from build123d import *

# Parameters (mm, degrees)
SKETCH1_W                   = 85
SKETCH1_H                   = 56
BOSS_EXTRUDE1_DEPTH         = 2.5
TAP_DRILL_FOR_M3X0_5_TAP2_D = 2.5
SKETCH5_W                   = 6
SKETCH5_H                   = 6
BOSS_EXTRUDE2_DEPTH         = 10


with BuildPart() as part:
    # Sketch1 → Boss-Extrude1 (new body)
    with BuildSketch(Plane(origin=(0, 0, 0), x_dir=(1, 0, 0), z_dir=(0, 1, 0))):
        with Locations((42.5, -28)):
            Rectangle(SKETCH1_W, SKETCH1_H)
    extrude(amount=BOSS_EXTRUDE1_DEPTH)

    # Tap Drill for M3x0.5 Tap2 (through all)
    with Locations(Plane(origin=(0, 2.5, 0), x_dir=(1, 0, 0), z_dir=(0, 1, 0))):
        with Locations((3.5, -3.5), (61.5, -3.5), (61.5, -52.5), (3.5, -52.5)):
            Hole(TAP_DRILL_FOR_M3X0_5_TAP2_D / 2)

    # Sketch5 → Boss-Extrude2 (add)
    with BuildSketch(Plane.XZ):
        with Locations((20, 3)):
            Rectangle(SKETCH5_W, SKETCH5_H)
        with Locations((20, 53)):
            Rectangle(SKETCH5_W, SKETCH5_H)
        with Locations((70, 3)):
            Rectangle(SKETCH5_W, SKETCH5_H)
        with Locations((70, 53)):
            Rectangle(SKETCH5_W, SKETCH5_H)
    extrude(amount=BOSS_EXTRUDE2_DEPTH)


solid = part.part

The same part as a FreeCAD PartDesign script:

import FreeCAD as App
import Part
import Sketcher
from FreeCAD import Vector

doc = App.newDocument("Part")
params = doc.addObject("Spreadsheet::Sheet", "Params")
for row, (alias, value) in enumerate([
    ("sketch1_width", "85 mm"),
    ("sketch1_height", "56 mm"),
    ("pad1_length", "2.5 mm"),
    ("sketch2_diameter", "2.5 mm"),
    ("hole_diameter", "2.5 mm"),
    ("sketch3_width", "6 mm"),
    ("pad2_length", "10 mm"),
], start=1):
    params.set(f"A{row}", alias)
    params.set(f"B{row}", "=" + value)
    params.setAlias(f"B{row}", alias)

body = doc.addObject("PartDesign::Body", "Body")

sketch1 = body.newObject("Sketcher::SketchObject", "Sketch")
sketch1.AttachmentSupport = (doc.getObject("XZ_Plane"), [""])
sketch1.MapMode = "FlatFace"
sketch1.addGeometry([
    Part.LineSegment(Vector(0, 0, 0), Vector(0, 56, 0)),
    Part.LineSegment(Vector(0, 56, 0), Vector(85, 56, 0)),
    Part.LineSegment(Vector(85, 56, 0), Vector(85, 0, 0)),
    Part.LineSegment(Vector(85, 0, 0), Vector(0, 0, 0)),
], False)
sketch1.addConstraint([
    Sketcher.Constraint("Coincident", 0, 2, 1, 1),
    Sketcher.Constraint("Coincident", 1, 2, 2, 1),
    Sketcher.Constraint("Coincident", 2, 2, 3, 1),
    Sketcher.Constraint("Coincident", 3, 2, 0, 1),
    Sketcher.Constraint("Vertical", 0),
    Sketcher.Constraint("Horizontal", 1),
    Sketcher.Constraint("Vertical", 2),
    Sketcher.Constraint("Horizontal", 3),
    Sketcher.Constraint("Coincident", 3, 2, -1, 1),
    Sketcher.Constraint("DistanceX", 1, 1, 1, 2, 85.0),
    Sketcher.Constraint("DistanceY", 0, 1, 0, 2, 56.0),
])
sketch1.setExpression("Constraints[9]", "Params.sketch1_width")
sketch1.setExpression("Constraints[10]", "Params.sketch1_height")
pad1 = body.newObject("PartDesign::Pad", "Pad")
pad1.Profile = sketch1
pad1.setExpression("Length", "Params.pad1_length")
pad1.Reversed = True

sketch2 = body.newObject("Sketcher::SketchObject", "Sketch001")
sketch2.AttachmentSupport = (doc.getObject("XZ_Plane"), [""])
sketch2.MapMode = "FlatFace"
sketch2.AttachmentOffset = App.Placement(Vector(0, 0, -2.5), App.Rotation())
sketch2.addGeometry([
    Part.Circle(Vector(3.5, 3.5, 0), Vector(0, 0, 1), 1.2),
    Part.Circle(Vector(61.5, 3.5, 0), Vector(0, 0, 1), 1.2),
    Part.Circle(Vector(61.5, 52.5, 0), Vector(0, 0, 1), 1.2),
    Part.Circle(Vector(3.5, 52.5, 0), Vector(0, 0, 1), 1.2),
], False)
sketch2.addConstraint([
    Sketcher.Constraint("Equal", 0, 1),
    Sketcher.Constraint("Equal", 1, 2),
    Sketcher.Constraint("Equal", 2, 3),
    Sketcher.Constraint("Horizontal", 0, 3, 1, 3),
    Sketcher.Constraint("Horizontal", 2, 3, 3, 3),
    Sketcher.Constraint("Vertical", 1, 3, 2, 3),
    Sketcher.Constraint("Vertical", 0, 3, 3, 3),
    Sketcher.Constraint("Diameter", 0, 2.5),
    Sketcher.Constraint("DistanceX", 0, 3, 1, 3, 58.0),
    Sketcher.Constraint("DistanceY", 1, 3, 2, 3, 49.0),
    Sketcher.Constraint("DistanceX", -1, 1, 0, 3, 3.5),
    Sketcher.Constraint("DistanceY", -1, 1, 0, 3, 3.5),
])
sketch2.setExpression("Constraints[7]", "Params.sketch2_diameter")
doc.recompute()
hole = body.newObject("PartDesign::Hole", "Hole")
hole.Profile = sketch2
hole.ThreadType = "None"
hole.setExpression("Diameter", "Params.hole_diameter")
hole.DepthType = "ThroughAll"
hole.Reversed = True

sketch3 = body.newObject("Sketcher::SketchObject", "Sketch002")
sketch3.AttachmentSupport = (doc.getObject("XZ_Plane"), [""])
sketch3.MapMode = "FlatFace"
sketch3.addGeometry([
    Part.LineSegment(Vector(17, 6, 0), Vector(17, 0, 0)),
    Part.LineSegment(Vector(17, 0, 0), Vector(23, 0, 0)),
    Part.LineSegment(Vector(23, 0, 0), Vector(23, 6, 0)),
    Part.LineSegment(Vector(23, 6, 0), Vector(17, 6, 0)),
    Part.LineSegment(Vector(17, 56, 0), Vector(17, 50, 0)),
    Part.LineSegment(Vector(17, 50, 0), Vector(23, 50, 0)),
    Part.LineSegment(Vector(23, 50, 0), Vector(23, 56, 0)),
    Part.LineSegment(Vector(23, 56, 0), Vector(17, 56, 0)),
    Part.LineSegment(Vector(67, 6, 0), Vector(67, 0, 0)),
    Part.LineSegment(Vector(67, 0, 0), Vector(73, 0, 0)),
    Part.LineSegment(Vector(73, 0, 0), Vector(73, 6, 0)),
    Part.LineSegment(Vector(73, 6, 0), Vector(67, 6, 0)),
    Part.LineSegment(Vector(67, 56, 0), Vector(67, 50, 0)),
    Part.LineSegment(Vector(67, 50, 0), Vector(73, 50, 0)),
    Part.LineSegment(Vector(73, 50, 0), Vector(73, 56, 0)),
    Part.LineSegment(Vector(73, 56, 0), Vector(67, 56, 0)),
], False)
sketch3.addConstraint([
    Sketcher.Constraint("Coincident", 0, 2, 1, 1),
    Sketcher.Constraint("Coincident", 1, 2, 2, 1),
    Sketcher.Constraint("Coincident", 2, 2, 3, 1),
    Sketcher.Constraint("Coincident", 3, 2, 0, 1),
    Sketcher.Constraint("Coincident", 4, 2, 5, 1),
    Sketcher.Constraint("Coincident", 5, 2, 6, 1),
    Sketcher.Constraint("Coincident", 6, 2, 7, 1),
    Sketcher.Constraint("Coincident", 7, 2, 4, 1),
    Sketcher.Constraint("Coincident", 8, 2, 9, 1),
    Sketcher.Constraint("Coincident", 9, 2, 10, 1),
    Sketcher.Constraint("Coincident", 10, 2, 11, 1),
    Sketcher.Constraint("Coincident", 11, 2, 8, 1),
    Sketcher.Constraint("Coincident", 12, 2, 13, 1),
    Sketcher.Constraint("Coincident", 13, 2, 14, 1),
    Sketcher.Constraint("Coincident", 14, 2, 15, 1),
    Sketcher.Constraint("Coincident", 15, 2, 12, 1),
    Sketcher.Constraint("Vertical", 0),
    Sketcher.Constraint("Horizontal", 1),
    Sketcher.Constraint("Vertical", 2),
    Sketcher.Constraint("Horizontal", 3),
    Sketcher.Constraint("Vertical", 4),
    Sketcher.Constraint("Horizontal", 5),
    Sketcher.Constraint("Vertical", 6),
    Sketcher.Constraint("Horizontal", 7),
    Sketcher.Constraint("Vertical", 8),
    Sketcher.Constraint("Horizontal", 9),
    Sketcher.Constraint("Vertical", 10),
    Sketcher.Constraint("Horizontal", 11),
    Sketcher.Constraint("Vertical", 12),
    Sketcher.Constraint("Horizontal", 13),
    Sketcher.Constraint("Vertical", 14),
    Sketcher.Constraint("Horizontal", 15),
    Sketcher.Constraint("PointOnObject", 0, 2, -1),
    Sketcher.Constraint("PointOnObject", 8, 2, -1),
    Sketcher.Constraint("Horizontal", 3, 2, 10, 2),
    Sketcher.Constraint("Horizontal", 5, 2, 12, 2),
    Sketcher.Constraint("Horizontal", 7, 2, 14, 2),
    Sketcher.Constraint("Vertical", 3, 2, 4, 2),
    Sketcher.Constraint("Vertical", 2, 2, 5, 2),
    Sketcher.Constraint("Vertical", 11, 2, 12, 2),
    Sketcher.Constraint("Vertical", 10, 2, 13, 2),
    Sketcher.Constraint("Equal", 7, 9),
    Sketcher.Constraint("Equal", 15, 0),
    Sketcher.Constraint("Equal", 2, 4),
    Sketcher.Constraint("DistanceX", 1, 1, 1, 2, 6.0),
    Sketcher.Constraint("DistanceX", -1, 1, 0, 2, 17.0),
    Sketcher.Constraint("DistanceY", -1, 1, 4, 2, 50.0),
    Sketcher.Constraint("DistanceX", -1, 1, 8, 2, 67.0),
])
sketch3.setExpression("Constraints[44]", "Params.sketch3_width")
pad2 = body.newObject("PartDesign::Pad", "Pad001")
pad2.Profile = sketch3
pad2.setExpression("Length", "Params.pad2_length")

doc.recompute()
